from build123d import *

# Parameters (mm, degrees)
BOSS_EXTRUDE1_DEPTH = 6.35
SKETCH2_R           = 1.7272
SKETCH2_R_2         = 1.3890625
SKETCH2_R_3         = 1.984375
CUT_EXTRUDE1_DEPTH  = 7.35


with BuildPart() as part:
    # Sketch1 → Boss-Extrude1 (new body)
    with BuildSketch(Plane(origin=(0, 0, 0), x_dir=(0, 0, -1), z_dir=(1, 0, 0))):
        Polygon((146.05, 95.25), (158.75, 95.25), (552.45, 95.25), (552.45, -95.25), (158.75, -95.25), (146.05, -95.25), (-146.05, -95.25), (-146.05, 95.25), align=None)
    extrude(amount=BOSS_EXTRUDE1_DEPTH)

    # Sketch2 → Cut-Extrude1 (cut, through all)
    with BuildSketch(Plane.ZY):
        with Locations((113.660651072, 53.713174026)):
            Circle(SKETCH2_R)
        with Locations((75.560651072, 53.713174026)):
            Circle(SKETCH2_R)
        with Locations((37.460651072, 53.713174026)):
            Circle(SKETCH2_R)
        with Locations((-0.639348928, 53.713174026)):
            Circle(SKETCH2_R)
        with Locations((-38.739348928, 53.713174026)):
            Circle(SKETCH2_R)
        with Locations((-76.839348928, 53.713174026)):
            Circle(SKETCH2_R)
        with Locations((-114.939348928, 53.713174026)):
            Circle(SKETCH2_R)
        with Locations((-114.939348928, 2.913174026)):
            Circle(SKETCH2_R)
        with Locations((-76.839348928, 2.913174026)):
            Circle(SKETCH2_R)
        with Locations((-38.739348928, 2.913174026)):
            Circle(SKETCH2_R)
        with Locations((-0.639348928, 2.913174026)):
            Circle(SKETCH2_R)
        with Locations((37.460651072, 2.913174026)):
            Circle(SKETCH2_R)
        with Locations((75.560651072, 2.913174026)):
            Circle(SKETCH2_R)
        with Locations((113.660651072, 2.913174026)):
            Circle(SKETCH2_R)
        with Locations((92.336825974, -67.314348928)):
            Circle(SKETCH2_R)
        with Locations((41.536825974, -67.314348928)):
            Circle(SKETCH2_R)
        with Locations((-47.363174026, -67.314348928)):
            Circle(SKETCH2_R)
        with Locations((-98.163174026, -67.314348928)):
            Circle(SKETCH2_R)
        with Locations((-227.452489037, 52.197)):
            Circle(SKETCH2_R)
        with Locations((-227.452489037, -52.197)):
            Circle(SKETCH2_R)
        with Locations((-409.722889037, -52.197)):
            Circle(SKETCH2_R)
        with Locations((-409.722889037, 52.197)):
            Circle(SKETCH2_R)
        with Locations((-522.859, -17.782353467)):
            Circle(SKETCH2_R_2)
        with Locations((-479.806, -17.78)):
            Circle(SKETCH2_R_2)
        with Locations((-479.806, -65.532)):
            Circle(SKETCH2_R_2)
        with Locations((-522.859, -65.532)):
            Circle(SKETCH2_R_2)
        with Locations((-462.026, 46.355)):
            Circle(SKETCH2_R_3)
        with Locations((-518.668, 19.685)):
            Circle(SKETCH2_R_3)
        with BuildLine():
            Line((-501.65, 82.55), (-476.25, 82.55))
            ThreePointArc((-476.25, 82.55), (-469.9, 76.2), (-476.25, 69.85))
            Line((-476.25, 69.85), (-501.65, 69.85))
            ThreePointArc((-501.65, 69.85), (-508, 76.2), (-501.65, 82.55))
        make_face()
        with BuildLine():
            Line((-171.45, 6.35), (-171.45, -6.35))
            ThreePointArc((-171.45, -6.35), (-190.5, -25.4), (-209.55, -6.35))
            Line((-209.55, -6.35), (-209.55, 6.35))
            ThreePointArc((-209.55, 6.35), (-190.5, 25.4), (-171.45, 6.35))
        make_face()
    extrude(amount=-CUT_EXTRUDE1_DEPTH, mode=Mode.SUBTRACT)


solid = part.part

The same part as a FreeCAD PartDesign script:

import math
import FreeCAD as App
import Part
import Sketcher

V = App.Vector
Q = App.Units.Quantity


def add_polygon(sketch, points):
    """Adds a closed chain of lines whose ends are joined by coincident constraints."""
    first, n = sketch.GeometryCount, len(points)
    for a, b in zip(points, points[1:] + points[:1]):
        sketch.addGeometry(Part.LineSegment(App.Vector(*a, 0), App.Vector(*b, 0)), False)
    for i in range(n):
        sketch.addConstraint(Sketcher.Constraint("Coincident", first + i, 2, first + (i + 1) % n, 1))

doc = App.newDocument("Part")
body = doc.addObject("PartDesign::Body", "Body")

# Sketch on YZ plane
sketch1 = doc.addObject("Sketcher::SketchObject", "Sketch")
body.addObject(sketch1)
sketch1.AttachmentSupport = (doc.YZ_Plane, [""])
sketch1.MapMode = "FlatFace"
add_polygon(sketch1, [(95, -552), (95, 146), (-95, 146), (-95, -552)])  # lines 0-3
sketch1.addConstraint([
    Sketcher.Constraint("Vertical", 0),
    Sketcher.Constraint("Horizontal", 1),
    Sketcher.Constraint("Vertical", 2),
    Sketcher.Constraint("Horizontal", 3),
    Sketcher.Constraint("DistanceX", 1, 2, 1, 1, Q("7.5 in")),
    Sketcher.Constraint("DistanceY", 0, 1, 0, 2, Q("27.5 in")),
    Sketcher.Constraint("DistanceX", -1, 1, 0, 2, Q("3.75 in")),
    Sketcher.Constraint("DistanceY", -1, 1, 0, 2, Q("5.75 in")),
])
pad1 = doc.addObject("PartDesign::Pad", "Pad")
body.addObject(pad1)
pad1.Profile = sketch1
pad1.Length = Q("0.25 in")

# Sketch on YZ plane
sketch2 = doc.addObject("Sketcher::SketchObject", "Sketch001")
body.addObject(sketch2)
sketch2.AttachmentSupport = (doc.YZ_Plane, [""])
sketch2.MapMode = "FlatFace"
sketch2.addGeometry([
    Part.Circle(V(53.7, 113.7, 0), V(0, 0, 1), 1.7),  # 0
    Part.Circle(V(53.7, 75.6, 0), V(0, 0, 1), 1.7),  # 1
    Part.Circle(V(53.7, 37.5, 0), V(0, 0, 1), 1.7),  # 2
    Part.Circle(V(53.7, -0.6, 0), V(0, 0, 1), 1.7),  # 3
    Part.Circle(V(53.7, -38.7, 0), V(0, 0, 1), 1.7),  # 4
    Part.Circle(V(53.7, -76.8, 0), V(0, 0, 1), 1.7),  # 5
    Part.Circle(V(53.7, -114.9, 0), V(0, 0, 1), 1.7),  # 6
    Part.Circle(V(2.9, -114.9, 0), V(0, 0, 1), 1.7),  # 7
    Part.Circle(V(2.9, -76.8, 0), V(0, 0, 1), 1.7),  # 8
    Part.Circle(V(2.9, -38.7, 0), V(0, 0, 1), 1.7),  # 9
    Part.Circle(V(2.9, -0.6, 0), V(0, 0, 1), 1.7),  # 10
    Part.Circle(V(2.9, 37.5, 0), V(0, 0, 1), 1.7),  # 11
    Part.Circle(V(2.9, 75.6, 0), V(0, 0, 1), 1.7),  # 12
    Part.Circle(V(2.9, 113.7, 0), V(0, 0, 1), 1.7),  # 13
    Part.Circle(V(-67.3, 92.3, 0), V(0, 0, 1), 1.7),  # 14
    Part.Circle(V(-67.3, 41.5, 0), V(0, 0, 1), 1.7),  # 15
    Part.Circle(V(-67.3, -47.4, 0), V(0, 0, 1), 1.7),  # 16
    Part.Circle(V(-67.3, -98.2, 0), V(0, 0, 1), 1.7),  # 17
    Part.Circle(V(52.2, -227.5, 0), V(0, 0, 1), 1.7),  # 18
    Part.Circle(V(-52.2, -227.5, 0), V(0, 0, 1), 1.7),  # 19
    Part.Circle(V(-52.2, -409.7, 0), V(0, 0, 1), 1.7),  # 20
    Part.Circle(V(52.2, -409.7, 0), V(0, 0, 1), 1.7),  # 21
    Part.Circle(V(-17.8, -522.9, 0), V(0, 0, 1), 1.4),  # 22
    Part.Circle(V(-17.8, -479.8, 0), V(0, 0, 1), 1.4),  # 23
    Part.Circle(V(-65.5, -479.8, 0), V(0, 0, 1), 1.4),  # 24
    Part.Circle(V(-65.5, -522.9, 0), V(0, 0, 1), 1.4),  # 25
    Part.Circle(V(46.4, -462, 0), V(0, 0, 1), 2),  # 26
    Part.Circle(V(19.7, -518.7, 0), V(0, 0, 1), 2),  # 27
    Part.LineSegment(V(82.5, -476.2, 0), V(82.5, -501.6, 0)),  # 28
    Part.ArcOfCircle(Part.Circle(V(76.2, -501.6, 0), V(0, 0, 1), 6.3), math.radians(180), math.radians(360)),  # 29
    Part.LineSegment(V(69.8, -501.6, 0), V(69.8, -476.2, 0)),  # 30
    Part.ArcOfCircle(Part.Circle(V(76.2, -476.2, 0), V(0, 0, 1), 6.3), math.radians(0), math.radians(180)),  # 31
    Part.LineSegment(V(-6.3, -171.4, 0), V(6.3, -171.4, 0)),  # 32
    Part.ArcOfCircle(Part.Circle(V(6.3, -190.5, 0), V(0, 0, 1), 19.1), math.radians(-90), math.radians(90)),  # 33
    Part.LineSegment(V(6.3, -209.6, 0), V(-6.3, -209.6, 0)),  # 34
    Part.ArcOfCircle(Part.Circle(V(-6.3, -190.5, 0), V(0, 0, 1), 19.1), math.radians(90), math.radians(270)),  # 35
], False)
sketch2.addConstraint([
    Sketcher.Constraint("Tangent", 28, 2, 29, 2),
    Sketcher.Constraint("Tangent", 29, 1, 30, 1),
    Sketcher.Constraint("Tangent", 30, 2, 31, 2),
    Sketcher.Constraint("Tangent", 31, 1, 28, 1),
    Sketcher.Constraint("Tangent", 32, 2, 33, 2),
    Sketcher.Constraint("Tangent", 33, 1, 34, 1),
    Sketcher.Constraint("Tangent", 34, 2, 35, 2),
    Sketcher.Constraint("Tangent", 35, 1, 32, 1),
    Sketcher.Constraint("Vertical", 28),
    Sketcher.Constraint("Vertical", 30),
    Sketcher.Constraint("Horizontal", 32),
    Sketcher.Constraint("Horizontal", 34),
    Sketcher.Constraint("Equal", 0, 1),
    Sketcher.Constraint("Equal", 1, 2),
    Sketcher.Constraint("Equal", 2, 3),
    Sketcher.Constraint("Equal", 3, 4),
    Sketcher.Constraint("Equal", 4, 5),
    Sketcher.Constraint("Equal", 5, 6),
    Sketcher.Constraint("Equal", 6, 7),
    Sketcher.Constraint("Equal", 7, 8),
    Sketcher.Constraint("Equal", 8, 9),
    Sketcher.Constraint("Equal", 9, 10),
    Sketcher.Constraint("Equal", 10, 11),
    Sketcher.Constraint("Equal", 11, 12),
    Sketcher.Constraint("Equal", 12, 13),
    Sketcher.Constraint("Equal", 13, 14),
    Sketcher.Constraint("Equal", 14, 15),
    Sketcher.Constraint("Equal", 15, 16),
    Sketcher.Constraint("Equal", 16, 17),
    Sketcher.Constraint("Equal", 17, 18),
    Sketcher.Constraint("Equal", 18, 19),
    Sketcher.Constraint("Equal", 19, 20),
    Sketcher.Constraint("Equal", 20, 21),
    Sketcher.Constraint("Equal", 22, 23),
    Sketcher.Constraint("Equal", 23, 24),
    Sketcher.Constraint("Equal", 24, 25),
    Sketcher.Constraint("Equal", 26, 27),
    Sketcher.Constraint("Symmetric", 18, 3, 19, 3, -2),
    Sketcher.Constraint("Symmetric", 20, 3, 21, 3, -2),
    Sketcher.Constraint("Horizontal", 6, 3, 7, 3),
    Sketcher.Constraint("Horizontal", 5, 3, 8, 3),
    Sketcher.Constraint("Horizontal", 4, 3, 9, 3),
    Sketcher.Constraint("Horizontal", 3, 3, 10, 3),
    Sketcher.Constraint("Horizontal", 2, 3, 11, 3),
    Sketcher.Constraint("Horizontal", 1, 3, 12, 3),
    Sketcher.Constraint("Horizontal", 0, 3, 13, 3),
    Sketcher.Constraint("Horizontal", 23, 3, 24, 3),
    Sketcher.Constraint("Horizontal", 22, 3, 25, 3),
    Sketcher.Constraint("Vertical", 0, 3, 1, 3),
    Sketcher.Constraint("Vertical", 1, 3, 2, 3),
    Sketcher.Constraint("Vertical", 2, 3, 3, 3),
    Sketcher.Constraint("Vertical", 3, 3, 4, 3),
    Sketcher.Constraint("Vertical", 4, 3, 5, 3),
    Sketcher.Constraint("Vertical", 5, 3, 6, 3),
    Sketcher.Constraint("Vertical", 7, 3, 8, 3),
    Sketcher.Constraint("Vertical", 8, 3, 9, 3),
    Sketcher.Constraint("Vertical", 9, 3, 10, 3),
    Sketcher.Constraint("Vertical", 10, 3, 11, 3),
    Sketcher.Constraint("Vertical", 11, 3, 12, 3),
    Sketcher.Constraint("Vertical", 12, 3, 13, 3),
    Sketcher.Constraint("Vertical", 14, 3, 15, 3),
    Sketcher.Constraint("Vertical", 15, 3, 16, 3),
    Sketcher.Constraint("Vertical", 16, 3, 17, 3),
    Sketcher.Constraint("Vertical", 19, 3, 20, 3),
    Sketcher.Constraint("Vertical", 24, 3, 25, 3),
    Sketcher.Constraint("DistanceY", 28, 2, 28, 1, Q("1 in")),
    Sketcher.Constraint("Radius", 29, Q("0.25 in")),
    Sketcher.Constraint("Radius", 33, Q("0.75 in")),
    Sketcher.Constraint("Diameter", 0, Q("0.136 in")),
    Sketcher.Constraint("Diameter", 22, Q("0.109375 in")),
    Sketcher.Constraint("Diameter", 26, Q("0.15625 in")),
    Sketcher.Constraint("DistanceX", 32, 1, 32, 2, Q("0.5 in")),
    Sketcher.Constraint("DistanceX", -1, 1, 29, 3, Q("3 in")),
    Sketcher.Constraint("DistanceY", 2, 3, 0, 3, Q("3 in")),
    Sketcher.Constraint("DistanceY", 3, 3, 1, 3, Q("3 in")),
    Sketcher.Constraint("DistanceY", 4, 3, 2, 3, Q("3 in")),
    Sketcher.Constraint("DistanceY", 5, 3, 3, 3, Q("3 in")),
    Sketcher.Constraint("DistanceY", 6, 3, 4, 3, Q("3 in")),
    Sketcher.Constraint("DistanceX", 7, 3, 6, 3, Q("2 in")),
    Sketcher.Constraint("DistanceY", 15, 3, 14, 3, Q("2 in")),
    Sketcher.Constraint("DistanceY", 17, 3, 16, 3, Q("2 in")),
    Sketcher.Constraint("DistanceX", 23, 3, -1, 1, Q("0.7 in")),
    Sketcher.Constraint("DistanceY", 33, 3, -1, 1, Q("7.5 in")),
    Sketcher.Constraint("DistanceY", 1, 3, 0, 3, Q("1.5 in")),
    Sketcher.Constraint("DistanceY", 16, 3, 15, 3, Q("3.5 in")),
    Sketcher.Constraint("DistanceY", 23, 3, 26, 3, Q("0.7 in")),
    Sketcher.Constraint("DistanceY", 23, 3, -1, 1, Q("18.89 in")),
    Sketcher.Constraint("DistanceX", 24, 3, -1, 1, Q("2.58 in")),
    Sketcher.Constraint("DistanceY", 27, 3, -1, 1, Q("20.42 in")),
    Sketcher.Constraint("DistanceY", 29, 3, -1, 1, Q("19.75 in")),
    Sketcher.Constraint("DistanceX", -1, 1, 33, 3, Q("0.25 in")),
    Sketcher.Constraint("DistanceX", 19, 3, 18, 3, Q("4.11 in")),
    Sketcher.Constraint("DistanceX", 26, 3, 21, 3, Q("0.23 in")),
    Sketcher.Constraint("DistanceX", 27, 3, 26, 3, Q("1.05 in")),
    Sketcher.Constraint("DistanceY", 22, 3, -1, 1, Q("20.585 in")),
    Sketcher.Constraint("DistanceY", 20, 3, 19, 3, Q("7.176 in")),
    Sketcher.Constraint("DistanceY", -1, 1, 0, 3, Q("113.660651 mm")),
    Sketcher.Constraint("DistanceX", 14, 3, -1, 1, Q("67.314349 mm")),
    Sketcher.Constraint("DistanceY", 18, 3, -1, 1, Q("227.452489 mm")),
    Sketcher.Constraint("DistanceX", -1, 1, 0, 3, Q("53.713174 mm")),
    Sketcher.Constraint("DistanceY", -1, 1, 14, 3, Q("92.336826 mm")),
    Sketcher.Constraint("DistanceX", 22, 3, -1, 1, Q("17.782353 mm")),
])
pocket1 = doc.addObject("PartDesign::Pocket", "Pocket")
body.addObject(pocket1)
pocket1.Profile = sketch2
pocket1.Type = "ThroughAll"
pocket1.Reversed = True

doc.recompute()
